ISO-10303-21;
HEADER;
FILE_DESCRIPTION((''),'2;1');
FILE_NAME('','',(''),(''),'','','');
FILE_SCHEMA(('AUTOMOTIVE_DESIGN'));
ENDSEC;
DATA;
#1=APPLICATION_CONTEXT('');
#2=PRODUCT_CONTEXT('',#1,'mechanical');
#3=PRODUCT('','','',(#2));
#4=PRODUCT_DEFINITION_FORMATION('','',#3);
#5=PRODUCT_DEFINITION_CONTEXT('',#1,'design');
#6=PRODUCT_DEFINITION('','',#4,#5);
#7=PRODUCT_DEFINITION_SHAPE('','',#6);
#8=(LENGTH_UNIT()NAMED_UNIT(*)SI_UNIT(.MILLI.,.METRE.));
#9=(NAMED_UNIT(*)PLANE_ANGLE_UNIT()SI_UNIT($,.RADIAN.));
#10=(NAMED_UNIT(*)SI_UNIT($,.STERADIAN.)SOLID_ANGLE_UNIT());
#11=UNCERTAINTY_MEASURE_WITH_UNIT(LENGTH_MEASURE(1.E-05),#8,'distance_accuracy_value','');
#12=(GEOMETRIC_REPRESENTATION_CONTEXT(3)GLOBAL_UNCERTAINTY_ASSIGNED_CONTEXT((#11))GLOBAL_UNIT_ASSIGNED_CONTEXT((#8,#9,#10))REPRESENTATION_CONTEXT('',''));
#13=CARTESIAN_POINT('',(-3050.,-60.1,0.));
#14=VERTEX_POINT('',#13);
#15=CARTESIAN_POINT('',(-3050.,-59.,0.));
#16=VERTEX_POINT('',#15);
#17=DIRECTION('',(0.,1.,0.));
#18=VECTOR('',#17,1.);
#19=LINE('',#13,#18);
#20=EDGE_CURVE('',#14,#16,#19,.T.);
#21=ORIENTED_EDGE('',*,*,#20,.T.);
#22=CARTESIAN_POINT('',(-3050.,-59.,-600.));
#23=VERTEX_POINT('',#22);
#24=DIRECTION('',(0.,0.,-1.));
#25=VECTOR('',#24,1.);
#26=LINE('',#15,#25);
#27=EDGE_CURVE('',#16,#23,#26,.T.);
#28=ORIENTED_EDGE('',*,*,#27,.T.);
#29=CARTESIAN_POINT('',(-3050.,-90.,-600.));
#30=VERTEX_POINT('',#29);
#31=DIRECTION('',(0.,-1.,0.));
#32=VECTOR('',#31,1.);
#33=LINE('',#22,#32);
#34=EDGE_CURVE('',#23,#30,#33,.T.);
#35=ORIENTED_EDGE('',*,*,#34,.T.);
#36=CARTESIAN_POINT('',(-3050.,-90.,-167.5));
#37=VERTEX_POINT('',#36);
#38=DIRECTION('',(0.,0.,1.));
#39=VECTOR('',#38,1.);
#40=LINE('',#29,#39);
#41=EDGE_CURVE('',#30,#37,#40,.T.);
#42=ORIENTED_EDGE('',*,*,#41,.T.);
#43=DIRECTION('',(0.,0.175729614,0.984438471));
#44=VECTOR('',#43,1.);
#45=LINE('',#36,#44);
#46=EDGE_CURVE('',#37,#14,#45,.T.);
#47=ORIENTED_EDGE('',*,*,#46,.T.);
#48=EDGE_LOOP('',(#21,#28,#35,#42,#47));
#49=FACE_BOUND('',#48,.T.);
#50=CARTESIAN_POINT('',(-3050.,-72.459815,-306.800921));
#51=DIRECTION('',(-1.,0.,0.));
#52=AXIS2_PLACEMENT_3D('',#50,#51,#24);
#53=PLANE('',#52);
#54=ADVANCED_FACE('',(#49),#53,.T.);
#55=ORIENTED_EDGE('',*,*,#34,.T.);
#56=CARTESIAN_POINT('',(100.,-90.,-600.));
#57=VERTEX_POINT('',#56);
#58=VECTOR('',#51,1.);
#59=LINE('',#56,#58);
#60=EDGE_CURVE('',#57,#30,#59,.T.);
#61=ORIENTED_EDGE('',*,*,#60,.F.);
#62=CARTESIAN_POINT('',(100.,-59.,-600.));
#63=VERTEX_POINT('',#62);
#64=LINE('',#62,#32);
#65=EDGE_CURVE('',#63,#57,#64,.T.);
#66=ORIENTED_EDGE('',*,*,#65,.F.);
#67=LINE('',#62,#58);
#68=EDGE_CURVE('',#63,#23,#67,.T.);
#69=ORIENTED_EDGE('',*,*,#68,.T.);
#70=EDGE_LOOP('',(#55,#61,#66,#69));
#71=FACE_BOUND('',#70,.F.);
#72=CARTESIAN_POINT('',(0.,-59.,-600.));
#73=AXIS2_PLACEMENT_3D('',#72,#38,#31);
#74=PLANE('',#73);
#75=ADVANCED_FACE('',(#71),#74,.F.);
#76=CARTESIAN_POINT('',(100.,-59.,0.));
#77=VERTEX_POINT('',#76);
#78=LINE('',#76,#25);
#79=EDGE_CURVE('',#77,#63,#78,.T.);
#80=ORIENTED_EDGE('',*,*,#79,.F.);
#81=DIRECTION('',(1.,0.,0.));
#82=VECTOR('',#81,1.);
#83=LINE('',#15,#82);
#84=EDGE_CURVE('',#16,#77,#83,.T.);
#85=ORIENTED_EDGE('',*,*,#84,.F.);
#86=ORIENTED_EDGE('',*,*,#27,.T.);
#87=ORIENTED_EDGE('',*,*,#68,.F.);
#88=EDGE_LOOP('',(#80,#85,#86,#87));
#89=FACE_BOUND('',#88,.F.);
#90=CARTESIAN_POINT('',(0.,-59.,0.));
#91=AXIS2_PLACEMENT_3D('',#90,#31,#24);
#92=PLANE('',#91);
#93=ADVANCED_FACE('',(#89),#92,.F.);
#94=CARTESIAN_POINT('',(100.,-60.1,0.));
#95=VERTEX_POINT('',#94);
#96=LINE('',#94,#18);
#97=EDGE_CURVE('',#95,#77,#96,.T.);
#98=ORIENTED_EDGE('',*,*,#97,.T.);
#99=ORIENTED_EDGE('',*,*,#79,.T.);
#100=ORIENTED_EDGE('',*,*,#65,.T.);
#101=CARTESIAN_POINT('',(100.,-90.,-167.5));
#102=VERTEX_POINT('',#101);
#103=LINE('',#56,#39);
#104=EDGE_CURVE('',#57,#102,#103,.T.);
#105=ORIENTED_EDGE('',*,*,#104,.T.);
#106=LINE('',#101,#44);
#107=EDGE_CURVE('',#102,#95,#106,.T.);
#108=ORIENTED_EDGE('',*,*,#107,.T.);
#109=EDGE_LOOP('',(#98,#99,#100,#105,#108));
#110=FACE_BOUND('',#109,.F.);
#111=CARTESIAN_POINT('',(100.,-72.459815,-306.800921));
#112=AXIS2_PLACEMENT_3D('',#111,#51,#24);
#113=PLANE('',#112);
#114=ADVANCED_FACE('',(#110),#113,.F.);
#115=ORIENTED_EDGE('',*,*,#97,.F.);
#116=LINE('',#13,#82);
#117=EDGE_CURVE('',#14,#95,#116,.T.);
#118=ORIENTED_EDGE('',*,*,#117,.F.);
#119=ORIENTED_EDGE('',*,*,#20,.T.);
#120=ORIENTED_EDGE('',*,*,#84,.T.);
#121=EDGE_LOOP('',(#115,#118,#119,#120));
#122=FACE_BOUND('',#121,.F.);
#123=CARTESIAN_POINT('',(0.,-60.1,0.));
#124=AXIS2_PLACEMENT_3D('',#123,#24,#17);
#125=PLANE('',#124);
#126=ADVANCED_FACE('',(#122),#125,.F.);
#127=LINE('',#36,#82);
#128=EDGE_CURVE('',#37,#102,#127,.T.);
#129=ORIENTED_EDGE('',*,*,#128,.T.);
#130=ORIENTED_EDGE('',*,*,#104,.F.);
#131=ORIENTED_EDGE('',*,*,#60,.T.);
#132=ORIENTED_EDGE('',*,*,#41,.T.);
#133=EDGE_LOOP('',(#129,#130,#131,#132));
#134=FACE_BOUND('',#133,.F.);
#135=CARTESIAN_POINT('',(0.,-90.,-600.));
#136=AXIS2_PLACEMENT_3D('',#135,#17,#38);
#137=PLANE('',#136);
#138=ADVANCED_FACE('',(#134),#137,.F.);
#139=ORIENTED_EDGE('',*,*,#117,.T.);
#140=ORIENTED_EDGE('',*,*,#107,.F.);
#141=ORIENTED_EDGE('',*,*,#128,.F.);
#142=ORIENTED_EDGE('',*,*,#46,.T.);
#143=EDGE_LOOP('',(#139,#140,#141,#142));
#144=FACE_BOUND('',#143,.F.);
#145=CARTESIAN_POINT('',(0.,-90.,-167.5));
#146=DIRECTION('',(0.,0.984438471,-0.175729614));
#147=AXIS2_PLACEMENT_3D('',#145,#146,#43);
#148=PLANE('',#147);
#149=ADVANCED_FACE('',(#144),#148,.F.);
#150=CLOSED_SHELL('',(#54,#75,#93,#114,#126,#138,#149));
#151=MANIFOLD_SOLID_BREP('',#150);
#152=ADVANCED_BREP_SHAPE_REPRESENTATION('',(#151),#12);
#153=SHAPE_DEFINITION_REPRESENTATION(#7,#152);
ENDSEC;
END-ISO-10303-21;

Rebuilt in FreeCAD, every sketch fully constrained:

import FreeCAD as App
import Part
import Sketcher

V = App.Vector

doc = App.newDocument("Part")
params = doc.addObject("Spreadsheet::Sheet", "Params")
for row, (alias, value) in enumerate([
    ("sketch1_width", "31 mm"),
    ("sketch1_height", "600 mm"),
    ("sketch1_height2", "432.5 mm"),
    ("pad1_length", "3050 mm"),
    ("pad1_length2", "100 mm"),
], start=1):
    params.set(f"A{row}", alias)
    params.set(f"B{row}", "=" + value)
    params.setAlias(f"B{row}", alias)

body = doc.addObject("PartDesign::Body", "Body")

sketch1 = body.newObject("Sketcher::SketchObject", "Sketch")
sketch1.AttachmentSupport = (doc.getObject("YZ_Plane"), [""])
sketch1.MapMode = "FlatFace"
sketch1.addGeometry([
    Part.LineSegment(V(-59, -600, 0), V(-59, 0, 0)),
    Part.LineSegment(V(-59, 0, 0), V(-60.1, 0, 0)),
    Part.LineSegment(V(-60.1, 0, 0), V(-90, -167.5, 0)),
    Part.LineSegment(V(-90, -167.5, 0), V(-90, -600, 0)),
    Part.LineSegment(V(-90, -600, 0), V(-59, -600, 0)),
], False)
sketch1.addConstraint([
    Sketcher.Constraint("Coincident", 0, 2, 1, 1),
    Sketcher.Constraint("Coincident", 1, 2, 2, 1),
    Sketcher.Constraint("Coincident", 2, 2, 3, 1),
    Sketcher.Constraint("Coincident", 3, 2, 4, 1),
    Sketcher.Constraint("Coincident", 4, 2, 0, 1),
    Sketcher.Constraint("Vertical", 0),
    Sketcher.Constraint("Horizontal", 1),
    Sketcher.Constraint("Vertical", 3),
    Sketcher.Constraint("Horizontal", 4),
    Sketcher.Constraint("PointOnObject", 0, 2, -1),
    Sketcher.Constraint("DistanceX", 0, 2, -1, 1, 59.0),
    Sketcher.Constraint("DistanceX", 1, 2, -1, 1, 60.1),
    Sketcher.Constraint("DistanceX", 4, 1, 4, 2, 31.0),
    Sketcher.Constraint("DistanceY", 0, 1, 0, 2, 600.0),
    Sketcher.Constraint("DistanceY", 3, 2, 3, 1, 432.5),
])
sketch1.setExpression("Constraints[12]", "Params.sketch1_width")
sketch1.setExpression("Constraints[13]", "Params.sketch1_height")
sketch1.setExpression("Constraints[14]", "Params.sketch1_height2")
pad1 = body.newObject("PartDesign::Pad", "Pad")
pad1.Profile = sketch1
pad1.Type = "TwoLengths"
pad1.setExpression("Length", "Params.pad1_length")
pad1.setExpression("Length2", "Params.pad1_length2")
pad1.Reversed = True

doc.recompute()
